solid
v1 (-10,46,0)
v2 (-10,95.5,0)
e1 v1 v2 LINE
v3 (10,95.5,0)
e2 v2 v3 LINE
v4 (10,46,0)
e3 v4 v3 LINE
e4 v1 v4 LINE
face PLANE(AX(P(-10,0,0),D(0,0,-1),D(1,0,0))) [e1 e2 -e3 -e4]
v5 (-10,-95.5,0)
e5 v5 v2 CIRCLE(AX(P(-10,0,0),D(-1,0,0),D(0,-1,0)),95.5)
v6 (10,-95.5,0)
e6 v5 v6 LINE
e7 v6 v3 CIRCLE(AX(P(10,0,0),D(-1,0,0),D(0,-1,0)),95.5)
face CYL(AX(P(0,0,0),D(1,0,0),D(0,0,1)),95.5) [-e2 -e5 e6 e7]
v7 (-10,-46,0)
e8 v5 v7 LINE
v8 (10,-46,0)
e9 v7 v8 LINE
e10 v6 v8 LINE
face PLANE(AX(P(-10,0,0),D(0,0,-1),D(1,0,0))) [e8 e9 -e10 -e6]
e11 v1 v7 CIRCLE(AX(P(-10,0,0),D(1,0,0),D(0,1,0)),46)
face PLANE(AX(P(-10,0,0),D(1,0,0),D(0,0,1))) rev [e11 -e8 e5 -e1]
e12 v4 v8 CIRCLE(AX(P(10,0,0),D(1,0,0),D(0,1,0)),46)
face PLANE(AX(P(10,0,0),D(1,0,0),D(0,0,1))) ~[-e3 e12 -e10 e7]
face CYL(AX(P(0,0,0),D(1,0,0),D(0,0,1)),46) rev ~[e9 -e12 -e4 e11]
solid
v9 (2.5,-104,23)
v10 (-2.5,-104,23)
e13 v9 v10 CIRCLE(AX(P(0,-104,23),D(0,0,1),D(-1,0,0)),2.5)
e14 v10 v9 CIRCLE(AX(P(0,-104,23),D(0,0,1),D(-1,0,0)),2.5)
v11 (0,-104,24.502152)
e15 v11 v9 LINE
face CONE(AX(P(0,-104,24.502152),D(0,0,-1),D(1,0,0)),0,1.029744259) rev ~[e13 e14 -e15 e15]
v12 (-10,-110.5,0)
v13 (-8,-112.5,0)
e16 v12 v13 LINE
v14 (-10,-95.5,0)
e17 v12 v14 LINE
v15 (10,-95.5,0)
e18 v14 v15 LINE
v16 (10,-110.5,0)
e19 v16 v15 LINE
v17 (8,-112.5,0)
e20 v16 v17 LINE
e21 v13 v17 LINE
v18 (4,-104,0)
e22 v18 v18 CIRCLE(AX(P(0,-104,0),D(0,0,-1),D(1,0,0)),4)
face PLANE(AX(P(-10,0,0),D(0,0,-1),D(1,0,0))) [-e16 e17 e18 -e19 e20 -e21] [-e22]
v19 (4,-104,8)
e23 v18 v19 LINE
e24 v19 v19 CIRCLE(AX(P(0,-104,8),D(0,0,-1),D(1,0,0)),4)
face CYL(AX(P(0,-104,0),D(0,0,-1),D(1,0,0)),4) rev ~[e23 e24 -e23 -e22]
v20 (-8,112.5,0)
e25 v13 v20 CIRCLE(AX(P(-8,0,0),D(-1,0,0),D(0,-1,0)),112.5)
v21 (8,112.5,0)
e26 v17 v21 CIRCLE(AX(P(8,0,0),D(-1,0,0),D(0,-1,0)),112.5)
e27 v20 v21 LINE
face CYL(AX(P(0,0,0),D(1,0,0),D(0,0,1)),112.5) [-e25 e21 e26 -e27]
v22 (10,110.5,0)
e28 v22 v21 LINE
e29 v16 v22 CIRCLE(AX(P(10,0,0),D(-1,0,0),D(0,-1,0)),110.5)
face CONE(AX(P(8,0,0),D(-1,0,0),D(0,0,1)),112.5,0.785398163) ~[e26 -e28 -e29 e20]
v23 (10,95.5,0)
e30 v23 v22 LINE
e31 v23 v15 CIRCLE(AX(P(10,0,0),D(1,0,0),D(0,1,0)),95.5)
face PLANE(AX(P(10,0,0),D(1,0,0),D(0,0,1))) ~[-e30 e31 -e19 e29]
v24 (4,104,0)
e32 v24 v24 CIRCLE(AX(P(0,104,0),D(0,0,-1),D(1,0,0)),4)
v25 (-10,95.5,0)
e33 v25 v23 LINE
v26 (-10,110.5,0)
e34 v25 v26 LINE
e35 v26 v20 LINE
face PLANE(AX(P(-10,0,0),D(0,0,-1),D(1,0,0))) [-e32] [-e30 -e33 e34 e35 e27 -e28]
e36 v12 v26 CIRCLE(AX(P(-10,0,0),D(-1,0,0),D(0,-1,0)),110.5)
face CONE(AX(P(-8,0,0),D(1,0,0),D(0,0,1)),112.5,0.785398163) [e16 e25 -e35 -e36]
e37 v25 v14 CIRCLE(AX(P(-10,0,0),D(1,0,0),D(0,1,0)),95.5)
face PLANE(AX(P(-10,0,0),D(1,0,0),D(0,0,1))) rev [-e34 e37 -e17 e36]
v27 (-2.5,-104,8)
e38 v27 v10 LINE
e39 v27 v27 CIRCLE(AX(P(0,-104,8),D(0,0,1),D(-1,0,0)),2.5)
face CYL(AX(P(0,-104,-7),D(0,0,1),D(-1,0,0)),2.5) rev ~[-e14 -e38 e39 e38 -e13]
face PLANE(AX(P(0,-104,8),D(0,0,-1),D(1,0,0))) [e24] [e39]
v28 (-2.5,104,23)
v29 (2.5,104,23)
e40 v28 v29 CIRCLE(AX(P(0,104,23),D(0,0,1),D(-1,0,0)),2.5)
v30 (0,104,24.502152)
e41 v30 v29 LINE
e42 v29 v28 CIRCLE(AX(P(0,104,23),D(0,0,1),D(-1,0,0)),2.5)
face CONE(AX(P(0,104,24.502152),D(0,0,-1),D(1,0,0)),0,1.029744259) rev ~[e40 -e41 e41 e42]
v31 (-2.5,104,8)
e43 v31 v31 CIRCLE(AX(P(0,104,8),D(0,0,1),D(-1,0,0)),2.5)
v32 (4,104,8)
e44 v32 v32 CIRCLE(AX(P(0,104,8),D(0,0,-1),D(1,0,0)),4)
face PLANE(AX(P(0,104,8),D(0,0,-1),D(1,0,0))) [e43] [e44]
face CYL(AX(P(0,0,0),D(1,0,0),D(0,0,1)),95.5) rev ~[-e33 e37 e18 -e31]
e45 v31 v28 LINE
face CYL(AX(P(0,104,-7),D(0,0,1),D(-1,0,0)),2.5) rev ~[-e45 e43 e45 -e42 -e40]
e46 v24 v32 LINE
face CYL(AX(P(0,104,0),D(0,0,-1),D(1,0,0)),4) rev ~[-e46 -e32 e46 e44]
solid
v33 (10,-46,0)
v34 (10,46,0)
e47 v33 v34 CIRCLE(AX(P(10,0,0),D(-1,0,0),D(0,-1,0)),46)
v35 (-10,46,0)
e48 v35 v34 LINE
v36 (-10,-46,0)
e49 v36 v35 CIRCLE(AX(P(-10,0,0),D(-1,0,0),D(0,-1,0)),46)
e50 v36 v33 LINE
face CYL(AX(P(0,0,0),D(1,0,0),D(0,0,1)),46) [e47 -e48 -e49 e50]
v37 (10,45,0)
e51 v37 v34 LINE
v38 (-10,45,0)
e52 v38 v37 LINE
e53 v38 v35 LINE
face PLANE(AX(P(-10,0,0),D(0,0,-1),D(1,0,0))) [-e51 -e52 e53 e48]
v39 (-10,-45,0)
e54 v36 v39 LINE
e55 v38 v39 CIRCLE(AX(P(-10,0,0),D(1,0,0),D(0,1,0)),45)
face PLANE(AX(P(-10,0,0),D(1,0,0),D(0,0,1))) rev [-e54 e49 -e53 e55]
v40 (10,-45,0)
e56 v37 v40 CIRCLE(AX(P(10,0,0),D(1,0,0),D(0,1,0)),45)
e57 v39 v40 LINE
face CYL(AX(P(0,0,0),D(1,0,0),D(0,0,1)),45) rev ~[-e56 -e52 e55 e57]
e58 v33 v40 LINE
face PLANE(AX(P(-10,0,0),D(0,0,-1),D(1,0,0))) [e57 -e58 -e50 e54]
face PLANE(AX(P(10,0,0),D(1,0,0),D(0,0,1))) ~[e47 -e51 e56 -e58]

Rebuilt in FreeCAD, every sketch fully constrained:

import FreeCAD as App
import Part
import Sketcher
Q = App.Units.Quantity


def edges_at(feature, points):
    """Names of the edges that pass closest to the given points."""
    edges = feature.Shape.Edges
    near = lambda p: min(range(len(edges)), key=lambda i: edges[i].distToShape(Part.Vertex(*p))[0])
    return sorted({f"Edge{near(p) + 1}" for p in points})

doc = App.newDocument("Part")
body = doc.addObject("PartDesign::Body", "Body")

# Sketch on XZ plane
sketch1 = body.newObject("Sketcher::SketchObject", "Sketch")
sketch1.AttachmentSupport = (doc.getObject("XZ_Plane"), [""])
sketch1.MapMode = "FlatFace"
sketch1.addGeometry(Part.LineSegment(App.Vector(-10, 46, 0), App.Vector(-10, 45, 0)), False)
sketch1.addGeometry(Part.LineSegment(App.Vector(-10, 45, 0), App.Vector(10, 45, 0)), False)
sketch1.addGeometry(Part.LineSegment(App.Vector(10, 45, 0), App.Vector(10, 46, 0)), False)
sketch1.addGeometry(Part.LineSegment(App.Vector(10, 46, 0), App.Vector(-10, 46, 0)), False)
sketch1.addConstraint(Sketcher.Constraint("Coincident", 0, 2, 1, 1))
sketch1.addConstraint(Sketcher.Constraint("Coincident", 1, 2, 2, 1))
sketch1.addConstraint(Sketcher.Constraint("Coincident", 2, 2, 3, 1))
sketch1.addConstraint(Sketcher.Constraint("Coincident", 3, 2, 0, 1))
sketch1.addConstraint(Sketcher.Constraint("Vertical", 0))
sketch1.addConstraint(Sketcher.Constraint("Horizontal", 1))
sketch1.addConstraint(Sketcher.Constraint("Vertical", 2))
sketch1.addConstraint(Sketcher.Constraint("Horizontal", 3))
sketch1.addConstraint(Sketcher.Constraint("DistanceX", 1, 1, 1, 2, Q("20 mm")))
sketch1.addConstraint(Sketcher.Constraint("DistanceY", 0, 2, 0, 1, Q("1 mm")))
sketch1.addConstraint(Sketcher.Constraint("DistanceX", 0, 2, -1, 1, Q("10 mm")))
sketch1.addConstraint(Sketcher.Constraint("DistanceY", -1, 1, 0, 2, Q("45 mm")))
revolution = body.newObject("PartDesign::Revolution", "Revolution")
revolution.Profile = sketch1
revolution.ReferenceAxis = (sketch1, ["H_Axis"])
revolution.Angle = 360
body2 = doc.addObject("PartDesign::Body", "Body001")

# Sketch on XZ plane
sketch2 = body2.newObject("Sketcher::SketchObject", "Sketch001")
sketch2.AttachmentSupport = (doc.getObject("XZ_Plane001"), [""])
sketch2.MapMode = "FlatFace"
sketch2.addGeometry(Part.LineSegment(App.Vector(-10, 96, 0), App.Vector(-10, 46, 0)), False)
sketch2.addGeometry(Part.LineSegment(App.Vector(-10, 46, 0), App.Vector(10, 46, 0)), False)
sketch2.addGeometry(Part.LineSegment(App.Vector(10, 46, 0), App.Vector(10, 96, 0)), False)
sketch2.addGeometry(Part.LineSegment(App.Vector(10, 96, 0), App.Vector(-10, 96, 0)), False)
sketch2.addConstraint(Sketcher.Constraint("Coincident", 0, 2, 1, 1))
sketch2.addConstraint(Sketcher.Constraint("Coincident", 1, 2, 2, 1))
sketch2.addConstraint(Sketcher.Constraint("Coincident", 2, 2, 3, 1))
sketch2.addConstraint(Sketcher.Constraint("Coincident", 3, 2, 0, 1))
sketch2.addConstraint(Sketcher.Constraint("Vertical", 0))
sketch2.addConstraint(Sketcher.Constraint("Horizontal", 1))
sketch2.addConstraint(Sketcher.Constraint("Vertical", 2))
sketch2.addConstraint(Sketcher.Constraint("Horizontal", 3))
sketch2.addConstraint(Sketcher.Constraint("DistanceX", 1, 1, 1, 2, Q("20 mm")))
sketch2.addConstraint(Sketcher.Constraint("DistanceY", 0, 2, 0, 1, Q("49.5 mm")))
sketch2.addConstraint(Sketcher.Constraint("DistanceX", 0, 2, -1, 1, Q("10 mm")))
sketch2.addConstraint(Sketcher.Constraint("DistanceY", -1, 1, 0, 2, Q("46 mm")))
revolution2 = body2.newObject("PartDesign::Revolution", "Revolution001")
revolution2.Profile = sketch2
revolution2.ReferenceAxis = (sketch2, ["H_Axis"])
revolution2.Angle = 360
body3 = doc.addObject("PartDesign::Body", "Body002")

# Sketch on XZ plane
sketch3 = body3.newObject("Sketcher::SketchObject", "Sketch002")
sketch3.AttachmentSupport = (doc.getObject("XZ_Plane002"), [""])
sketch3.MapMode = "FlatFace"
sketch3.addGeometry(Part.LineSegment(App.Vector(-10, 112, 0), App.Vector(-10, 96, 0)), False)
sketch3.addGeometry(Part.LineSegment(App.Vector(-10, 96, 0), App.Vector(10, 96, 0)), False)
sketch3.addGeometry(Part.LineSegment(App.Vector(10, 96, 0), App.Vector(10, 112, 0)), False)
sketch3.addGeometry(Part.LineSegment(App.Vector(10, 112, 0), App.Vector(-10, 112, 0)), False)
sketch3.addConstraint(Sketcher.Constraint("Coincident", 0, 2, 1, 1))
sketch3.addConstraint(Sketcher.Constraint("Coincident", 1, 2, 2, 1))
sketch3.addConstraint(Sketcher.Constraint("Coincident", 2, 2, 3, 1))
sketch3.addConstraint(Sketcher.Constraint("Coincident", 3, 2, 0, 1))
sketch3.addConstraint(Sketcher.Constraint("Vertical", 0))
sketch3.addConstraint(Sketcher.Constraint("Horizontal", 1))
sketch3.addConstraint(Sketcher.Constraint("Vertical", 2))
sketch3.addConstraint(Sketcher.Constraint("Horizontal", 3))
sketch3.addConstraint(Sketcher.Constraint("DistanceX", 1, 1, 1, 2, Q("20 mm")))
sketch3.addConstraint(Sketcher.Constraint("DistanceY", 0, 2, 0, 1, Q("17 mm")))
sketch3.addConstraint(Sketcher.Constraint("DistanceX", 0, 2, -1, 1, Q("10 mm")))
sketch3.addConstraint(Sketcher.Constraint("DistanceY", -1, 1, 0, 2, Q("95.5 mm")))
revolution3 = body3.newObject("PartDesign::Revolution", "Revolution002")
revolution3.Profile = sketch3
revolution3.ReferenceAxis = (sketch3, ["H_Axis"])
revolution3.Angle = 360
doc.recompute()

chamfer = body3.newObject("PartDesign::Chamfer", "Chamfer")
chamfer.Base = (revolution3, edges_at(revolution3, [(10, 0, -112.5), (-10, 0, -112.5)]))
chamfer.Size = 2
body4 = doc.addObject("PartDesign::Body", "Body003")

# Sketch on XZ plane
sketch4 = body4.newObject("Sketcher::SketchObject", "Sketch003")
sketch4.AttachmentSupport = (doc.getObject("XZ_Plane003"), [""])
sketch4.MapMode = "FlatFace"
sketch4.addGeometry(Part.LineSegment(App.Vector(-10, 0, 0), App.Vector(-10, -115, 0)), False)
sketch4.addGeometry(Part.LineSegment(App.Vector(-10, -115, 0), App.Vector(10, -115, 0)), False)
sketch4.addGeometry(Part.LineSegment(App.Vector(10, -115, 0), App.Vector(10, 0, 0)), False)
sketch4.addGeometry(Part.LineSegment(App.Vector(10, 0, 0), App.Vector(-10, 0, 0)), False)
sketch4.addConstraint(Sketcher.Constraint("Coincident", 0, 2, 1, 1))
sketch4.addConstraint(Sketcher.Constraint("Coincident", 1, 2, 2, 1))
sketch4.addConstraint(Sketcher.Constraint("Coincident", 2, 2, 3, 1))
sketch4.addConstraint(Sketcher.Constraint("Coincident", 3, 2, 0, 1))
sketch4.addConstraint(Sketcher.Constraint("Vertical", 0))
sketch4.addConstraint(Sketcher.Constraint("Horizontal", 1))
sketch4.addConstraint(Sketcher.Constraint("Vertical", 2))
sketch4.addConstraint(Sketcher.Constraint("Horizontal", 3))
sketch4.addConstraint(Sketcher.Constraint("Symmetric", 2, 2, 3, 2, -1, 1))
sketch4.addConstraint(Sketcher.Constraint("DistanceX", 1, 1, 1, 2, Q("20 mm")))
sketch4.addConstraint(Sketcher.Constraint("DistanceY", 0, 2, 0, 1, Q("115 mm")))
pad1 = body4.newObject("PartDesign::Pad", "Pad")
pad1.Profile = sketch4
pad1.Type = "TwoLengths"
pad1.Length = 112.501
pad1.Length2 = 112.501
doc.recompute()

body5 = doc.addObject("PartDesign::Body", "Body004")
body5.BaseFeature = body4
boolean = body.newObject("PartDesign::Boolean", "Boolean")
boolean.Type = "Cut"
boolean.addObjects([body5])
doc.recompute()

body6 = doc.addObject("PartDesign::Body", "Body005")
body6.BaseFeature = body4
boolean2 = body2.newObject("PartDesign::Boolean", "Boolean001")
boolean2.Type = "Cut"
boolean2.addObjects([body6])
doc.recompute()

boolean3 = body3.newObject("PartDesign::Boolean", "Boolean002")
boolean3.Type = "Cut"
boolean3.addObjects([body4])

# Sketch on XY plane
sketch5 = body3.newObject("Sketcher::SketchObject", "Sketch004")
sketch5.AttachmentSupport = (doc.getObject("XY_Plane002"), [""])
sketch5.MapMode = "FlatFace"
sketch5.addGeometry(Part.Circle(App.Vector(0, -104, 0), App.Vector(0, 0, 1), 4), False)
sketch5.addGeometry(Part.Circle(App.Vector(0, 104, 0), App.Vector(0, 0, 1), 4), False)
sketch5.addConstraint(Sketcher.Constraint("Equal", 0, 1))
sketch5.addConstraint(Sketcher.Constraint("Symmetric", 0, 3, 1, 3, -1, 1))
sketch5.addConstraint(Sketcher.Constraint("PointOnObject", 0, 3, -2))
sketch5.addConstraint(Sketcher.Constraint("Diameter", 0, Q("8 mm")))
sketch5.addConstraint(Sketcher.Constraint("DistanceY", 0, 3, -1, 1, Q("104 mm")))
pocket1 = body3.newObject("PartDesign::Pocket", "Pocket")
pocket1.Profile = sketch5
pocket1.Length = 8
pocket1.Reversed = True

# Sketch on XY plane
sketch6 = body3.newObject("Sketcher::SketchObject", "Sketch005")
sketch6.AttachmentSupport = (doc.getObject("XY_Plane002"), [""])
sketch6.MapMode = "FlatFace"
sketch6.AttachmentOffset = App.Placement(App.Vector(0, 0, 8), App.Rotation())
sketch6.addGeometry(Part.Circle(App.Vector(0, -104, 0), App.Vector(0, 0, 1), 2.5), False)
sketch6.addGeometry(Part.Circle(App.Vector(0, 104, 0), App.Vector(0, 0, 1), 2.5), False)
sketch6.addConstraint(Sketcher.Constraint("Equal", 0, 1))
sketch6.addConstraint(Sketcher.Constraint("Symmetric", 0, 3, 1, 3, -1, 1))
sketch6.addConstraint(Sketcher.Constraint("PointOnObject", 0, 3, -2))
sketch6.addConstraint(Sketcher.Constraint("Diameter", 0, Q("5 mm")))
sketch6.addConstraint(Sketcher.Constraint("DistanceY", 0, 3, -1, 1, Q("104 mm")))
doc.recompute()
hole = body3.newObject("PartDesign::Hole", "Hole")
hole.Profile = sketch6
hole.ThreadType = "None"
hole.Diameter = 5
hole.DepthType = "Dimension"
hole.Depth = 15
hole.DrillPoint = "Angled"
hole.DrillPointAngle = 118
hole.Reversed = True

doc.recompute()
